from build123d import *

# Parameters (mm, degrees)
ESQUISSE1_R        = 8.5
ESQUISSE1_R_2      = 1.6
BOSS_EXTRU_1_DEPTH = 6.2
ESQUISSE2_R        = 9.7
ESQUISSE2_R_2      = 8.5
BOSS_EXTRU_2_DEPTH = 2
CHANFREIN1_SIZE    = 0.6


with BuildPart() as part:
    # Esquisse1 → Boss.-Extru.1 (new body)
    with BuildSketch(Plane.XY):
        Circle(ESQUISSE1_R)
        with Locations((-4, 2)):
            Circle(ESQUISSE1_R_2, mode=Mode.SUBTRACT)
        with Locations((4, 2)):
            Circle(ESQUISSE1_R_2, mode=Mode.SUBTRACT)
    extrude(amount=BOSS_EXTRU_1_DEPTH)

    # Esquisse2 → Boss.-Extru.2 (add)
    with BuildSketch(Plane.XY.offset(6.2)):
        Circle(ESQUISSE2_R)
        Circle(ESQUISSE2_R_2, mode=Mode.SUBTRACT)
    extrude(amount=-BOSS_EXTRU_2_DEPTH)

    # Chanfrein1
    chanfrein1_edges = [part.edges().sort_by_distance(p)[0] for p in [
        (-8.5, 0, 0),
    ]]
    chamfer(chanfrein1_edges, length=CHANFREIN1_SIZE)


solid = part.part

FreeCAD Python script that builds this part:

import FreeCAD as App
import Part
import Sketcher
Q = App.Units.Quantity


def edges_at(feature, points):
    """Names of the edges that pass closest to the given points."""
    edges = feature.Shape.Edges
    near = lambda p: min(range(len(edges)), key=lambda i: edges[i].distToShape(Part.Vertex(*p))[0])
    return sorted({f"Edge{near(p) + 1}" for p in points})

doc = App.newDocument("Part")
params = doc.addObject("Spreadsheet::Sheet", "Params")
for row, (alias, value) in enumerate([
    ("sketch1_diameter", "17 mm"),
    ("sketch1_diameter2", "3.2 mm"),
    ("pad1_length", "6.2 mm"),
    ("sketch2_diameter", "17 mm"),
    ("sketch2_diameter2", "19.4 mm"),
    ("pad2_length", "2 mm"),
    ("chamfer_size", "0.6 mm"),
], start=1):
    params.set(f"A{row}", alias)
    params.set(f"B{row}", "=" + value)
    params.setAlias(f"B{row}", alias)

body = doc.addObject("PartDesign::Body", "Body")

# Sketch on XY plane
sketch1 = body.newObject("Sketcher::SketchObject", "Sketch")
sketch1.AttachmentSupport = (doc.getObject("XY_Plane"), [""])
sketch1.MapMode = "FlatFace"
sketch1.addGeometry(Part.Circle(App.Vector(0, 0, 0), App.Vector(0, 0, 1), 8.5), False)
sketch1.addGeometry(Part.Circle(App.Vector(4, 2, 0), App.Vector(0, 0, 1), 1.6), False)
sketch1.addGeometry(Part.Circle(App.Vector(-4, 2, 0), App.Vector(0, 0, 1), 1.6), False)
sketch1.addConstraint(Sketcher.Constraint("Coincident", 0, 3, -1, 1))
sketch1.addConstraint(Sketcher.Constraint("Equal", 1, 2))
sketch1.addConstraint(Sketcher.Constraint("Symmetric", 1, 3, 2, 3, -2))
sketch1.addConstraint(Sketcher.Constraint("Diameter", 0, Q("17 mm")))
sketch1.addConstraint(Sketcher.Constraint("Diameter", 1, Q("3.2 mm")))
sketch1.addConstraint(Sketcher.Constraint("DistanceX", -1, 1, 1, 3, Q("4 mm")))
sketch1.addConstraint(Sketcher.Constraint("DistanceY", -1, 1, 1, 3, Q("2 mm")))
sketch1.setExpression("Constraints[3]", "Params.sketch1_diameter")
sketch1.setExpression("Constraints[4]", "Params.sketch1_diameter2")
pad1 = body.newObject("PartDesign::Pad", "Pad")
pad1.Profile = sketch1
pad1.setExpression("Length", "Params.pad1_length")

# Sketch on XY plane
sketch2 = body.newObject("Sketcher::SketchObject", "Sketch001")
sketch2.AttachmentSupport = (doc.getObject("XY_Plane"), [""])
sketch2.MapMode = "FlatFace"
sketch2.AttachmentOffset = App.Placement(App.Vector(0, 0, 6.2), App.Rotation())
sketch2.addGeometry(Part.Circle(App.Vector(0, 0, 0), App.Vector(0, 0, 1), 10), False)
sketch2.addGeometry(Part.Circle(App.Vector(0, 0, 0), App.Vector(0, 0, 1), 8), False)
sketch2.addConstraint(Sketcher.Constraint("Coincident", 0, 3, -1, 1))
sketch2.addConstraint(Sketcher.Constraint("Coincident", 1, 3, -1, 1))
sketch2.addConstraint(Sketcher.Constraint("Diameter", 1, Q("17 mm")))
sketch2.addConstraint(Sketcher.Constraint("Diameter", 0, Q("19.4 mm")))
sketch2.setExpression("Constraints[2]", "Params.sketch2_diameter")
sketch2.setExpression("Constraints[3]", "Params.sketch2_diameter2")
pad2 = body.newObject("PartDesign::Pad", "Pad001")
pad2.Profile = sketch2
pad2.setExpression("Length", "Params.pad2_length")
pad2.Reversed = True
doc.recompute()

chamfer = body.newObject("PartDesign::Chamfer", "Chamfer")
chamfer.Base = (pad2, edges_at(pad2, [(-8.5, 0, 0)]))
chamfer.setExpression("Size", "Params.chamfer_size")

doc.recompute()
